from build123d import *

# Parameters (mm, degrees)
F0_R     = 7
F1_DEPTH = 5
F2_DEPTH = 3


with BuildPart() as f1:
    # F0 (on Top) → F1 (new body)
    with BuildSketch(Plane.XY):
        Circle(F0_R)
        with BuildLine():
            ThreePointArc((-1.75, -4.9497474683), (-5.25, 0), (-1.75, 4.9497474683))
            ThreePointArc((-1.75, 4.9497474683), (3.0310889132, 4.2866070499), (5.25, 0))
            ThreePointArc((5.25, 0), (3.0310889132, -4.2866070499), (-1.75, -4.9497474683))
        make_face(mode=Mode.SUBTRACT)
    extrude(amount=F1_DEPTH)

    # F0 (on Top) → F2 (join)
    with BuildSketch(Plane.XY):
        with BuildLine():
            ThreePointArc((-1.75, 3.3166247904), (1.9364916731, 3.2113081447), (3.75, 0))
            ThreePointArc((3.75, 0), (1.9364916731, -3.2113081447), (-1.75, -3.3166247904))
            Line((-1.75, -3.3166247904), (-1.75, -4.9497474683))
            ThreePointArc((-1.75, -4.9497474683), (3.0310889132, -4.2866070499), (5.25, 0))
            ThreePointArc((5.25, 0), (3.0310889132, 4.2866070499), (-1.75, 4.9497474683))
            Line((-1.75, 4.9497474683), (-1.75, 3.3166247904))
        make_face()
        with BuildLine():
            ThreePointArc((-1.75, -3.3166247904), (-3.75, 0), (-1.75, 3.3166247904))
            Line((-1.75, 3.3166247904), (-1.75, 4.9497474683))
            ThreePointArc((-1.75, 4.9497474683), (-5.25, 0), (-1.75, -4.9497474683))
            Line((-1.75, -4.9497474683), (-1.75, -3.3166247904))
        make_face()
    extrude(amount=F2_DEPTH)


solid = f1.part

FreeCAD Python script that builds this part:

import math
import FreeCAD as App
import Part
import Sketcher
from FreeCAD import Vector
Q = App.Units.Quantity

doc = App.newDocument("Part")
body = doc.addObject("PartDesign::Body", "Body")

# Sketch on XY plane
sketch1 = doc.addObject("Sketcher::SketchObject", "Sketch")
body.addObject(sketch1)
sketch1.AttachmentSupport = (doc.XY_Plane, [""])
sketch1.MapMode = "FlatFace"
sketch1.addGeometry([
    Part.Circle(Vector(0, 0, 0), Vector(0, 0, 1), 7),
    Part.ArcOfCircle(Part.Circle(Vector(0, 0, 0), Vector(0, 0, 1), 5.25), math.radians(-109.471221), math.radians(109.471221)),
    Part.ArcOfCircle(Part.Circle(Vector(0, 0, 0), Vector(0, 0, 1), 5.25), math.radians(109.471221), math.radians(250.528779)),
], False)
sketch1.addConstraint([
    Sketcher.Constraint("Tangent", 1, 1, 2, 2),
    Sketcher.Constraint("Coincident", 2, 1, 1, 2),
    Sketcher.Constraint("Coincident", 0, 3, -1, 1),
    Sketcher.Constraint("Coincident", 1, 3, -1, 1),
    Sketcher.Constraint("Vertical", 1, 1, 2, 1),
    Sketcher.Constraint("Diameter", 0, Q("14 mm")),
    Sketcher.Constraint("Radius", 1, Q("5.25 mm")),
    Sketcher.Constraint("DistanceX", 1, 1, -1, 1, Q("1.75 mm")),
])
pad1 = doc.addObject("PartDesign::Pad", "Pad")
body.addObject(pad1)
pad1.Profile = sketch1
pad1.Length = 5

# Sketch on XY plane
sketch2 = doc.addObject("Sketcher::SketchObject", "Sketch001")
body.addObject(sketch2)
sketch2.AttachmentSupport = (doc.XY_Plane, [""])
sketch2.MapMode = "FlatFace"
sketch2.addGeometry([
    Part.ArcOfCircle(Part.Circle(Vector(0, 0, 0), Vector(0, 0, 1), 5.25), math.radians(-109.471221), math.radians(109.471221)),  # 0
    Part.ArcOfCircle(Part.Circle(Vector(0, 0, 0), Vector(0, 0, 1), 5.25), math.radians(109.471221), math.radians(250.528779)),  # 1
    Part.ArcOfCircle(Part.Circle(Vector(0, 0, 0), Vector(0, 0, 1), 3.75), math.radians(0), math.radians(117.818139)),  # 2
    Part.ArcOfCircle(Part.Circle(Vector(0, 0, 0), Vector(0, 0, 1), 3.75), math.radians(-117.818139), math.radians(0)),  # 3
    Part.ArcOfCircle(Part.Circle(Vector(0, 0, 0), Vector(0, 0, 1), 3.75), math.radians(117.818139), math.radians(242.181861)),  # 4
], False)
sketch2.addConstraint([
    Sketcher.Constraint("Tangent", 0, 1, 1, 2),
    Sketcher.Constraint("Coincident", 1, 1, 0, 2),
    Sketcher.Constraint("Tangent", 2, 1, 3, 2),
    Sketcher.Constraint("Tangent", 3, 1, 4, 2),
    Sketcher.Constraint("Tangent", 4, 1, 2, 2),
    Sketcher.Constraint("Coincident", 0, 3, -1, 1),
    Sketcher.Constraint("Coincident", 2, 3, -1, 1),
    Sketcher.Constraint("PointOnObject", 2, 1, -1),
    Sketcher.Constraint("Vertical", 0, 1, 1, 1),
    Sketcher.Constraint("Vertical", 1, 1, 3, 1),
    Sketcher.Constraint("Vertical", 3, 1, 4, 1),
    Sketcher.Constraint("Radius", 0, Q("5.25 mm")),
    Sketcher.Constraint("Radius", 2, Q("3.75 mm")),
    Sketcher.Constraint("DistanceX", 0, 1, -1, 1, Q("1.75 mm")),
])
pad2 = doc.addObject("PartDesign::Pad", "Pad001")
body.addObject(pad2)
pad2.Profile = sketch2
pad2.Length = 3

doc.recompute()
